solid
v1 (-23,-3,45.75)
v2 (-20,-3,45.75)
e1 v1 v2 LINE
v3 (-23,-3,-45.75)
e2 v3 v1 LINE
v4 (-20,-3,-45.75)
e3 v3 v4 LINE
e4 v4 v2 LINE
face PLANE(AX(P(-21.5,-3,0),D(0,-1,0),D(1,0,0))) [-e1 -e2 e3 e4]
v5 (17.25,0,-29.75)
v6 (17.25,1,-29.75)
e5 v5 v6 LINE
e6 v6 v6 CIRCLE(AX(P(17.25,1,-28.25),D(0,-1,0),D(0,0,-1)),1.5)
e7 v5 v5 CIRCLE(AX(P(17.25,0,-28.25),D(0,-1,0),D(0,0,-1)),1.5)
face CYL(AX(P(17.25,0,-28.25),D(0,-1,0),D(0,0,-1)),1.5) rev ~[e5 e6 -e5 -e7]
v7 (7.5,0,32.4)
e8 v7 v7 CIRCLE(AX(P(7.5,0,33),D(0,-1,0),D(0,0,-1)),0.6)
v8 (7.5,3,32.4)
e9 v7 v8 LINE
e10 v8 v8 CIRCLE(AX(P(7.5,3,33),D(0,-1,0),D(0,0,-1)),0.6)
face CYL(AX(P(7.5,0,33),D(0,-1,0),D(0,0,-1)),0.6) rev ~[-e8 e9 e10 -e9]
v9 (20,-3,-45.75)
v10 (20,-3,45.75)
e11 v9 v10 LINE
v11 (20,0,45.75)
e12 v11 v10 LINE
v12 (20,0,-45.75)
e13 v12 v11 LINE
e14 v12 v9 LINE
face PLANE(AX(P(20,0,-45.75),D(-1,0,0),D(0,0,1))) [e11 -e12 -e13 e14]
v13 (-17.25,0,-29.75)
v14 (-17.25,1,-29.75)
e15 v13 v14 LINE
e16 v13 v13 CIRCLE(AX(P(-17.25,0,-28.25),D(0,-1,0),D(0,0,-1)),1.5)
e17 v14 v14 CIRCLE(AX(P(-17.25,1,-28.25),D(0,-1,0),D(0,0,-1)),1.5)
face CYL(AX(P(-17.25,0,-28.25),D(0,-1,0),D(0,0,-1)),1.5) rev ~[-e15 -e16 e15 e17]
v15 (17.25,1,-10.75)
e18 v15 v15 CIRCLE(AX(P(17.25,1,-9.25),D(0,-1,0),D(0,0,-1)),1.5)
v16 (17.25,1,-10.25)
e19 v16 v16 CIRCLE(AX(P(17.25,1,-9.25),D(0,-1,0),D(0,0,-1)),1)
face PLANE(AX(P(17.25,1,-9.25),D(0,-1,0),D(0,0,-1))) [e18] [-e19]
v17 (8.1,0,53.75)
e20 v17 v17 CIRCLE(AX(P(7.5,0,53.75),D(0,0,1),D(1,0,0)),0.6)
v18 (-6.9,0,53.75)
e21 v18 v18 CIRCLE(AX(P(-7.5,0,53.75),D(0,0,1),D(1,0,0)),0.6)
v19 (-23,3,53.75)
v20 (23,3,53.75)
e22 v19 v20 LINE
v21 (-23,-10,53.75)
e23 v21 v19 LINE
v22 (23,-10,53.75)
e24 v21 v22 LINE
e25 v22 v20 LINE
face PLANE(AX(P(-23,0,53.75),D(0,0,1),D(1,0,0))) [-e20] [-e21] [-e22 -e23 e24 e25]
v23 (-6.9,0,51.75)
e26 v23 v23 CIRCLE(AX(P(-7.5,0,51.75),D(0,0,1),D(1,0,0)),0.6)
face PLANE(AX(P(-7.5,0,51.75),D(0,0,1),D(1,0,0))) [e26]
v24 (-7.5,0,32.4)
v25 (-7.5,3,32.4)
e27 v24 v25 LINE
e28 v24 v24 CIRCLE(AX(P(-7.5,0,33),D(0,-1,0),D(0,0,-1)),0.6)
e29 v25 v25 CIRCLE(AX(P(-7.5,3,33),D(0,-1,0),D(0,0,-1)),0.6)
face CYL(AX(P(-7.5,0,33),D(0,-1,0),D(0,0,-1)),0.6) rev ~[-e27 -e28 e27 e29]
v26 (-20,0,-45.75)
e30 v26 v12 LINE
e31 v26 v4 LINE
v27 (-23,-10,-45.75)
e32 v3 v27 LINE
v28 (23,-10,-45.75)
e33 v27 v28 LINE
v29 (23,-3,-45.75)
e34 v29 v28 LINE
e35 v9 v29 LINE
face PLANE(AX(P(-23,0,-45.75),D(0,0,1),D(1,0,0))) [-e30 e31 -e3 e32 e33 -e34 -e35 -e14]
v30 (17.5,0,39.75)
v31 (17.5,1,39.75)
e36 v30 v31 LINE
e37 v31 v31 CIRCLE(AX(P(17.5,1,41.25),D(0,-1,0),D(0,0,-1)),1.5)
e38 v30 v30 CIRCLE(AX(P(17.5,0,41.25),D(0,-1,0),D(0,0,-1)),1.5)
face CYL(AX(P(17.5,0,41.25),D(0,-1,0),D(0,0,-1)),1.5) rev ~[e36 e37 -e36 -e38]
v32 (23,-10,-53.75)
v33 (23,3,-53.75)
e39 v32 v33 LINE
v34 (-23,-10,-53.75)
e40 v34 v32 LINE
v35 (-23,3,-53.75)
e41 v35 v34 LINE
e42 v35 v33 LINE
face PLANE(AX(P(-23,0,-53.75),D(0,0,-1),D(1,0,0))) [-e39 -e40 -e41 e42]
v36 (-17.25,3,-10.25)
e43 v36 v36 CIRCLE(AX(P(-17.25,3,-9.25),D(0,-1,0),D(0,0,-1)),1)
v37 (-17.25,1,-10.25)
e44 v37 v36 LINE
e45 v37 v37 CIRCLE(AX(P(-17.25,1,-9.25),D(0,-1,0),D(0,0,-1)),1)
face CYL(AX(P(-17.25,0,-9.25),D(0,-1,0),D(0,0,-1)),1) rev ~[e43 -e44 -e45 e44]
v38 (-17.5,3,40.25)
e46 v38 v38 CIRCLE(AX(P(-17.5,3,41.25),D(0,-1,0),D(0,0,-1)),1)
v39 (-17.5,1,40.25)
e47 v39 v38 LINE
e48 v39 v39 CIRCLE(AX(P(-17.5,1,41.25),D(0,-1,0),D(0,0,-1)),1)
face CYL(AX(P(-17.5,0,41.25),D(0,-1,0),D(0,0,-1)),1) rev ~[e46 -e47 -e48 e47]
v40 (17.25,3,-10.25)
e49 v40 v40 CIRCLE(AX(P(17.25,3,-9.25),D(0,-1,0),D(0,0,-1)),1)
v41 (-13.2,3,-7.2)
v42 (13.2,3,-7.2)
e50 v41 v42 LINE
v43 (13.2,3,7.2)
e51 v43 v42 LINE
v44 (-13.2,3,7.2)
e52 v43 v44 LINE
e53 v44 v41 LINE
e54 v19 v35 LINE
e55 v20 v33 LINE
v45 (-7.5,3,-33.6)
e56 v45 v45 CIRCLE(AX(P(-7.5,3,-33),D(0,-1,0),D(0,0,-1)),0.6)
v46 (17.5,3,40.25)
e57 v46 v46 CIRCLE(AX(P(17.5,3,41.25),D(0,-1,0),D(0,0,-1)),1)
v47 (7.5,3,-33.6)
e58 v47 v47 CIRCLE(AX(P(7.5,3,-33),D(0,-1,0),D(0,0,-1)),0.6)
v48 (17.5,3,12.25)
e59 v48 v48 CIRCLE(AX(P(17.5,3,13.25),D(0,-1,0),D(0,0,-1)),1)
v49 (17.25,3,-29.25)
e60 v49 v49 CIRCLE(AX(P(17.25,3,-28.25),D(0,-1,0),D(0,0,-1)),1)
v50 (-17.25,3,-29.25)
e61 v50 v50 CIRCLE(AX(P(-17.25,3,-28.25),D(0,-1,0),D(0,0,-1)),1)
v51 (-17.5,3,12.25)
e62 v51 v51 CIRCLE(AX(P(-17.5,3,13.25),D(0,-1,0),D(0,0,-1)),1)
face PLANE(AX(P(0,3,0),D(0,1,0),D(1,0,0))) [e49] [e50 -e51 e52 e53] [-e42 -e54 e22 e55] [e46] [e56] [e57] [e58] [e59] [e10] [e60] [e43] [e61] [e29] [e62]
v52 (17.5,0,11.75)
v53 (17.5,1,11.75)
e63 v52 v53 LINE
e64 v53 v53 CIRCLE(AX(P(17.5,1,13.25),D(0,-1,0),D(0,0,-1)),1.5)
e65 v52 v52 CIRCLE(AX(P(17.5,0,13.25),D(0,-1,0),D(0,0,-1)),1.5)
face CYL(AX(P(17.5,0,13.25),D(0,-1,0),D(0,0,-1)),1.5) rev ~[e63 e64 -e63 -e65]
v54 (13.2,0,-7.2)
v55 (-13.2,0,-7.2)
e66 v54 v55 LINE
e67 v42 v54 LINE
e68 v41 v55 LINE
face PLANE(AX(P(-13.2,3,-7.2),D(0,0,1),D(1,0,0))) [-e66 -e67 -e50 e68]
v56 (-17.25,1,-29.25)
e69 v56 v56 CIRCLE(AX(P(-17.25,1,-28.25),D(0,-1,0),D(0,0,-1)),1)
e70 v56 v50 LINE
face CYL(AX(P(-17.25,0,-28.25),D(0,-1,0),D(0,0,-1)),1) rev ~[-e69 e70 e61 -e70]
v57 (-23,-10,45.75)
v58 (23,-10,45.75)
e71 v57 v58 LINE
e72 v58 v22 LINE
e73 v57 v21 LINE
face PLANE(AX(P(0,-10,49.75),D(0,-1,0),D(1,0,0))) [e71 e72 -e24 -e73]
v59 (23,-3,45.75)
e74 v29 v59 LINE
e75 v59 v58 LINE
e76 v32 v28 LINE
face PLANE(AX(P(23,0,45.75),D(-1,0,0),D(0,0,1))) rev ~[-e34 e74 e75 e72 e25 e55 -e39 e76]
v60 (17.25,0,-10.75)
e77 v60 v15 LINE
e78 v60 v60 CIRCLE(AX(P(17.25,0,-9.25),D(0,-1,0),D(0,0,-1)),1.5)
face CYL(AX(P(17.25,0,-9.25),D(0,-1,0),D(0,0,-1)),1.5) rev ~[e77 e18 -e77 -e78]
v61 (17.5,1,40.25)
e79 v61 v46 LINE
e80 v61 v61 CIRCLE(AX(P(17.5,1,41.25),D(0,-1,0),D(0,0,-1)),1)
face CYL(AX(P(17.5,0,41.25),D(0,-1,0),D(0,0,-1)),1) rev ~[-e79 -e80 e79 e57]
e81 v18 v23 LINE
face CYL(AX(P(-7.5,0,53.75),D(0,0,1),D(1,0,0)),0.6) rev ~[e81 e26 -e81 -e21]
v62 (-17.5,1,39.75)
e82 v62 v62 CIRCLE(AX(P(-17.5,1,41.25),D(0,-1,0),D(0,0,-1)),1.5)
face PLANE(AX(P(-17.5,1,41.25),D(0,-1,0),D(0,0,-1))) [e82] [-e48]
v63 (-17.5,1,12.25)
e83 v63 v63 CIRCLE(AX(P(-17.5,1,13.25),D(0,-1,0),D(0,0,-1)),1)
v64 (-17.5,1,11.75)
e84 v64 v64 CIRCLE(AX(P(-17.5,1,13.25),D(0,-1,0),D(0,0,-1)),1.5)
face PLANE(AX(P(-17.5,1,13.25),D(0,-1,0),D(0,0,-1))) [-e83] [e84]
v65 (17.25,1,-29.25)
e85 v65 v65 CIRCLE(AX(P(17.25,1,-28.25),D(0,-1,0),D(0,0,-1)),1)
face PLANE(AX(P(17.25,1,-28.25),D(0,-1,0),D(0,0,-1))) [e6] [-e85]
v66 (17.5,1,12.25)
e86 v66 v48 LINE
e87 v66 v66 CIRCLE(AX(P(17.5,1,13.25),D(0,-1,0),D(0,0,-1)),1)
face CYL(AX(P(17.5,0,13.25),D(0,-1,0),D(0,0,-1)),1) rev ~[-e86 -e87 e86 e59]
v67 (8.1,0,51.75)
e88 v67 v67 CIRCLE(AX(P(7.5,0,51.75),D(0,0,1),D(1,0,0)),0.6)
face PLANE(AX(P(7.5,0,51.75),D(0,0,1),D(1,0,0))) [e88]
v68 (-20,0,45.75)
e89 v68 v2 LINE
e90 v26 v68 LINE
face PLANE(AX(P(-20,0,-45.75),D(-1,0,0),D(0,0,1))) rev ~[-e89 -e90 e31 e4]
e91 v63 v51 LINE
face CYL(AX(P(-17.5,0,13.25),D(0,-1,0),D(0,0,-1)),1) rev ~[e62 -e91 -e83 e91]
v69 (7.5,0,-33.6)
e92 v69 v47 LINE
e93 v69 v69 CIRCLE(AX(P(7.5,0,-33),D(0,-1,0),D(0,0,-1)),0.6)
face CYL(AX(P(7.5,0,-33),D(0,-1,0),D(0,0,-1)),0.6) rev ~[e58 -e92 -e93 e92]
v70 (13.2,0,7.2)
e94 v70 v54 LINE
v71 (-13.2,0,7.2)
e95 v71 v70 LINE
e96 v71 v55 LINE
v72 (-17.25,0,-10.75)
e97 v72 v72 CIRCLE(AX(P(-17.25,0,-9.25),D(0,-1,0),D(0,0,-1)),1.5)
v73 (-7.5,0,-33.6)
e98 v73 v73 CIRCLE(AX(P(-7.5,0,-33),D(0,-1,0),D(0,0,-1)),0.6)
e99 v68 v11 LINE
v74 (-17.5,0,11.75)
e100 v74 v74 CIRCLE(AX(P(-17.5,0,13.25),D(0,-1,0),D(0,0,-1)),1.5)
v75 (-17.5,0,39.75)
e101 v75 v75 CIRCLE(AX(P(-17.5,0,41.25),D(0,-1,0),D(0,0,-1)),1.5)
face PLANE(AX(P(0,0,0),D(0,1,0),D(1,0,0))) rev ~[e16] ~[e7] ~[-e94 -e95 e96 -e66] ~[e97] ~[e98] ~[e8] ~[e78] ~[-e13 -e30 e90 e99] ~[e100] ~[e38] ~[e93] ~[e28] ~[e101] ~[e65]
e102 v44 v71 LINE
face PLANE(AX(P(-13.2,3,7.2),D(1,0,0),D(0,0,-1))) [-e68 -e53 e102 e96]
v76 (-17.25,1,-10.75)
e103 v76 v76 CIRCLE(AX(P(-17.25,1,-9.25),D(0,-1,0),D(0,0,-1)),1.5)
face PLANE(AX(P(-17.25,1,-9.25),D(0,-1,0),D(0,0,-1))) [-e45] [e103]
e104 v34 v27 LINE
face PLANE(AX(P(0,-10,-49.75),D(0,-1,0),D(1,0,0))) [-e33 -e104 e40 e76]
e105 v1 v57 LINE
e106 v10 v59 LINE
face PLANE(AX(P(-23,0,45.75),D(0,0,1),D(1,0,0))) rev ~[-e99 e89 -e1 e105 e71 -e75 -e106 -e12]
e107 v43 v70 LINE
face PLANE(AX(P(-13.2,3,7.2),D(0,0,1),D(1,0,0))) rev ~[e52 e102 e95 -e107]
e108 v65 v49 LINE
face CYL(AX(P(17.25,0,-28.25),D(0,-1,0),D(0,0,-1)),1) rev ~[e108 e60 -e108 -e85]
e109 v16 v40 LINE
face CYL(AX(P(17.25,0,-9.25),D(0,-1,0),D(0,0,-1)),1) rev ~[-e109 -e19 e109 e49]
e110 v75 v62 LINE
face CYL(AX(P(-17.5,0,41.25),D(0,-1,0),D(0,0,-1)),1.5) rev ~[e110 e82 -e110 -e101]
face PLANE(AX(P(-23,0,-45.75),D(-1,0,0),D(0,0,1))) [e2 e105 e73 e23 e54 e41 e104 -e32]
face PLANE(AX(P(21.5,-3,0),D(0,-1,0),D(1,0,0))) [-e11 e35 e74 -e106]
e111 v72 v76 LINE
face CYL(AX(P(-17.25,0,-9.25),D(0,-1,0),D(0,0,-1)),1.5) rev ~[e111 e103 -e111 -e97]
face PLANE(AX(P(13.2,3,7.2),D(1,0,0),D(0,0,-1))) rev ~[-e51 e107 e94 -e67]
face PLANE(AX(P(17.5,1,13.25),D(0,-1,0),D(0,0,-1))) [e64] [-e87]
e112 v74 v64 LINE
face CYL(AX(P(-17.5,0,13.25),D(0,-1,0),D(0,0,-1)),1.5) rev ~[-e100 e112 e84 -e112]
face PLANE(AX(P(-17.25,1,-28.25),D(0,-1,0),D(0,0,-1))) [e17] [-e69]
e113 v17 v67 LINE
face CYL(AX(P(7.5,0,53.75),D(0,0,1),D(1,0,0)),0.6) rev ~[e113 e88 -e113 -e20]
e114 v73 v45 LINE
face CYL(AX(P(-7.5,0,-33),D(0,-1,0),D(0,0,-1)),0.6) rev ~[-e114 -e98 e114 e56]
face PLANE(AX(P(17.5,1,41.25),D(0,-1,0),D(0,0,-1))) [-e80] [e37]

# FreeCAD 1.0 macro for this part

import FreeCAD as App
import Part
import Sketcher

V = App.Vector
Q = App.Units.Quantity

doc = App.newDocument("Part")
params = doc.addObject("Spreadsheet::Sheet", "Params")
for row, (alias, value) in enumerate([
    ("sketch1_width", "46 mm"),
    ("sketch1_height", "107.5 mm"),
    ("pad1_length", "3 mm"),
    ("sketch2_height", "56 mm"),
    ("sketch2_width", "23.5 mm"),
    ("pad2_length", "12.4 mm"),
    ("sketch3_diameter", "3.5 mm"),
    ("sketch3_diameter2", "1.5 mm"),
    ("sketch4_diameter", "6 mm"),
    ("pocket2_length", "2.7 mm"),
    ("sketch5_diameter", "6 mm"),
    ("pocket3_length", "2.7 mm"),
    ("sketch6_diameter", "3 mm"),
    ("pocket4_length", "1.2 mm"),
    ("sketch7_diameter", "3 mm"),
    ("pocket5_length", "1.2 mm"),
    ("sketch8_diameter", "1.4 mm"),
    ("pocket6_length", "2 mm"),
    ("sketch9_width", "16.4 mm"),
    ("sketch9_height", "14.4 mm"),
    ("sketch10_width", "46 mm"),
    ("sketch10_height", "8 mm"),
    ("pad3_length", "10 mm"),
    ("sketch11_width", "3 mm"),
    ("sketch11_height", "91.5 mm"),
    ("pad4_length", "3 mm"),
    ("sketch12_diameter", "1.2 mm"),
    ("pocket8_length", "2 mm"),
    ("sketch13_width", "26.4 mm"),
    ("sketch13_height", "14.4 mm"),
    ("pocket9_length", "5 mm"),
    ("sketch14_diameter", "1 mm"),
    ("pocket10_length", "2 mm"),
    ("sketch15_width", "2 mm"),
    ("sketch15_width2", "3.2 mm"),
    ("sketch15_height", "5.2 mm"),
    ("sketch15_height2", "11.5 mm"),
    ("sketch16_diameter", "1.2 mm"),
    ("sketch17_width", "23.5 mm"),
    ("sketch17_height", "12.4 mm"),
    ("pocket13_length", "56 mm"),
    ("sketch18_diameter", "2 mm"),
    ("sketch19_diameter", "3 mm"),
    ("sketch19_diameter2", "2 mm"),
    ("pocket15_length", "1 mm"),
    ("sketch20_diameter", "2 mm"),
    ("sketch21_diameter", "3 mm"),
    ("pocket17_length", "1 mm"),
], start=1):
    params.set(f"A{row}", alias)
    params.set(f"B{row}", "=" + value)
    params.setAlias(f"B{row}", alias)

body = doc.addObject("PartDesign::Body", "Body")

# Sketch on XZ plane
sketch1 = body.newObject("Sketcher::SketchObject", "Sketch")
sketch1.AttachmentSupport = (doc.getObject("XZ_Plane"), [""])
sketch1.MapMode = "FlatFace"
sketch1.addGeometry(Part.LineSegment(V(-23, -54, 0), V(-23, 54, 0)), False)
sketch1.addGeometry(Part.LineSegment(V(-23, 54, 0), V(23, 54, 0)), False)
sketch1.addGeometry(Part.LineSegment(V(23, 54, 0), V(23, -54, 0)), False)
sketch1.addGeometry(Part.LineSegment(V(23, -54, 0), V(-23, -54, 0)), False)
sketch1.addConstraint(Sketcher.Constraint("Coincident", 0, 2, 1, 1))
sketch1.addConstraint(Sketcher.Constraint("Coincident", 1, 2, 2, 1))
sketch1.addConstraint(Sketcher.Constraint("Coincident", 2, 2, 3, 1))
sketch1.addConstraint(Sketcher.Constraint("Coincident", 3, 2, 0, 1))
sketch1.addConstraint(Sketcher.Constraint("Vertical", 0))
sketch1.addConstraint(Sketcher.Constraint("Horizontal", 1))
sketch1.addConstraint(Sketcher.Constraint("Vertical", 2))
sketch1.addConstraint(Sketcher.Constraint("Horizontal", 3))
sketch1.addConstraint(Sketcher.Constraint("Symmetric", 0, 2, 2, 2, -1, 1))
sketch1.addConstraint(Sketcher.Constraint("DistanceX", 1, 1, 1, 2, Q("46 mm")))
sketch1.addConstraint(Sketcher.Constraint("DistanceY", 0, 1, 0, 2, Q("107.5 mm")))
sketch1.setExpression("Constraints[9]", "Params.sketch1_width")
sketch1.setExpression("Constraints[10]", "Params.sketch1_height")
pad1 = body.newObject("PartDesign::Pad", "Pad")
pad1.Profile = sketch1
pad1.setExpression("Length", "Params.pad1_length")
pad1.Reversed = True

# Sketch on XZ plane
sketch2 = body.newObject("Sketcher::SketchObject", "Sketch001")
sketch2.AttachmentSupport = (doc.getObject("XZ_Plane"), [""])
sketch2.MapMode = "FlatFace"
sketch2.addGeometry(Part.LineSegment(V(-12, 28, 0), V(-12, -28, 0)), False)
sketch2.addGeometry(Part.LineSegment(V(-12, -28, 0), V(12, -28, 0)), False)
sketch2.addGeometry(Part.LineSegment(V(12, -28, 0), V(12, 28, 0)), False)
sketch2.addGeometry(Part.LineSegment(V(12, 28, 0), V(-12, 28, 0)), False)
sketch2.addConstraint(Sketcher.Constraint("Coincident", 0, 2, 1, 1))
sketch2.addConstraint(Sketcher.Constraint("Coincident", 1, 2, 2, 1))
sketch2.addConstraint(Sketcher.Constraint("Coincident", 2, 2, 3, 1))
sketch2.addConstraint(Sketcher.Constraint("Coincident", 3, 2, 0, 1))
sketch2.addConstraint(Sketcher.Constraint("Vertical", 0))
sketch2.addConstraint(Sketcher.Constraint("Horizontal", 1))
sketch2.addConstraint(Sketcher.Constraint("Vertical", 2))
sketch2.addConstraint(Sketcher.Constraint("Horizontal", 3))
sketch2.addConstraint(Sketcher.Constraint("Symmetric", 0, 2, 2, 2, -1, 1))
sketch2.addConstraint(Sketcher.Constraint("DistanceY", 0, 2, 0, 1, Q("56 mm")))
sketch2.addConstraint(Sketcher.Constraint("DistanceX", 1, 1, 1, 2, Q("23.5 mm")))
sketch2.setExpression("Constraints[9]", "Params.sketch2_height")
sketch2.setExpression("Constraints[10]", "Params.sketch2_width")
pad2 = body.newObject("PartDesign::Pad", "Pad001")
pad2.Profile = sketch2
pad2.setExpression("Length", "Params.pad2_length")

# Sketch on YZ plane
sketch3 = body.newObject("Sketcher::SketchObject", "Sketch002")
sketch3.AttachmentSupport = (doc.getObject("YZ_Plane"), [""])
sketch3.MapMode = "FlatFace"
sketch3.AttachmentOffset = App.Placement(V(0, 0, -11.75), App.Rotation())
sketch3.addGeometry(Part.Circle(V(-12.4, 0, 0), V(0, 0, 1), 1.8), False)
sketch3.addGeometry(Part.Circle(V(-12.4, 25, 0), V(0, 0, 1), 0.8), False)
sketch3.addGeometry(Part.Circle(V(-12.4, -25, 0), V(0, 0, 1), 0.8), False)
sketch3.addConstraint(Sketcher.Constraint("Equal", 1, 2))
sketch3.addConstraint(Sketcher.Constraint("Symmetric", 1, 3, 2, 3, -1))
sketch3.addConstraint(Sketcher.Constraint("PointOnObject", 0, 3, -1))
sketch3.addConstraint(Sketcher.Constraint("Vertical", 0, 3, 1, 3))
sketch3.addConstraint(Sketcher.Constraint("Diameter", 0, Q("3.5 mm")))
sketch3.addConstraint(Sketcher.Constraint("Diameter", 1, Q("1.5 mm")))
sketch3.addConstraint(Sketcher.Constraint("DistanceY", -1, 1, 1, 3, Q("25 mm")))
sketch3.addConstraint(Sketcher.Constraint("DistanceX", 0, 3, -1, 1, Q("12.4 mm")))
sketch3.setExpression("Constraints[4]", "Params.sketch3_diameter")
sketch3.setExpression("Constraints[5]", "Params.sketch3_diameter2")
pocket1 = body.newObject("PartDesign::Pocket", "Pocket")
pocket1.Profile = sketch3
pocket1.Type = "ThroughAll"
pocket1.Reversed = True

# Sketch on YZ plane
sketch4 = body.newObject("Sketcher::SketchObject", "Sketch003")
sketch4.AttachmentSupport = (doc.getObject("YZ_Plane"), [""])
sketch4.MapMode = "FlatFace"
sketch4.AttachmentOffset = App.Placement(V(0, 0, -11.75), App.Rotation())
sketch4.addGeometry(Part.Circle(V(-12.4, 0, 0), V(0, 0, 1), 3), False)
sketch4.addConstraint(Sketcher.Constraint("PointOnObject", 0, 3, -1))
sketch4.addConstraint(Sketcher.Constraint("Diameter", 0, Q("6 mm")))
sketch4.addConstraint(Sketcher.Constraint("DistanceX", 0, 3, -1, 1, Q("12.4 mm")))
sketch4.setExpression("Constraints[1]", "Params.sketch4_diameter")
pocket2 = body.newObject("PartDesign::Pocket", "Pocket001")
pocket2.Profile = sketch4
pocket2.setExpression("Length", "Params.pocket2_length")
pocket2.Reversed = True

# Sketch on YZ plane
sketch5 = body.newObject("Sketcher::SketchObject", "Sketch004")
sketch5.AttachmentSupport = (doc.getObject("YZ_Plane"), [""])
sketch5.MapMode = "FlatFace"
sketch5.AttachmentOffset = App.Placement(V(0, 0, 9.05), App.Rotation())
sketch5.addGeometry(Part.Circle(V(-12.4, 0, 0), V(0, 0, 1), 3), False)
sketch5.addConstraint(Sketcher.Constraint("PointOnObject", 0, 3, -1))
sketch5.addConstraint(Sketcher.Constraint("Diameter", 0, Q("6 mm")))
sketch5.addConstraint(Sketcher.Constraint("DistanceX", 0, 3, -1, 1, Q("12.4 mm")))
sketch5.setExpression("Constraints[1]", "Params.sketch5_diameter")
pocket3 = body.newObject("PartDesign::Pocket", "Pocket002")
pocket3.Profile = sketch5
pocket3.setExpression("Length", "Params.pocket3_length")
pocket3.Reversed = True

# Sketch on YZ plane
sketch6 = body.newObject("Sketcher::SketchObject", "Sketch005")
sketch6.AttachmentSupport = (doc.getObject("YZ_Plane"), [""])
sketch6.MapMode = "FlatFace"
sketch6.AttachmentOffset = App.Placement(V(0, 0, -11.75), App.Rotation())
sketch6.addGeometry(Part.Circle(V(-12.4, 25, 0), V(0, 0, 1), 1.5), False)
sketch6.addGeometry(Part.Circle(V(-12.4, -25, 0), V(0, 0, 1), 1.5), False)
sketch6.addConstraint(Sketcher.Constraint("Equal", 0, 1))
sketch6.addConstraint(Sketcher.Constraint("Symmetric", 0, 3, 1, 3, -1))
sketch6.addConstraint(Sketcher.Constraint("Diameter", 0, Q("3 mm")))
sketch6.addConstraint(Sketcher.Constraint("DistanceY", -1, 1, 0, 3, Q("25 mm")))
sketch6.addConstraint(Sketcher.Constraint("DistanceX", 0, 3, -1, 1, Q("12.4 mm")))
sketch6.setExpression("Constraints[2]", "Params.sketch6_diameter")
pocket4 = body.newObject("PartDesign::Pocket", "Pocket003")
pocket4.Profile = sketch6
pocket4.setExpression("Length", "Params.pocket4_length")
pocket4.Reversed = True

# Sketch on YZ plane
sketch7 = body.newObject("Sketcher::SketchObject", "Sketch006")
sketch7.AttachmentSupport = (doc.getObject("YZ_Plane"), [""])
sketch7.MapMode = "FlatFace"
sketch7.AttachmentOffset = App.Placement(V(0, 0, 10.55), App.Rotation())
sketch7.addGeometry(Part.Circle(V(-12.4, 25, 0), V(0, 0, 1), 1.5), False)
sketch7.addGeometry(Part.Circle(V(-12.4, -25, 0), V(0, 0, 1), 1.5), False)
sketch7.addConstraint(Sketcher.Constraint("Equal", 0, 1))
sketch7.addConstraint(Sketcher.Constraint("Symmetric", 0, 3, 1, 3, -1))
sketch7.addConstraint(Sketcher.Constraint("Diameter", 0, Q("3 mm")))
sketch7.addConstraint(Sketcher.Constraint("DistanceY", -1, 1, 0, 3, Q("25 mm")))
sketch7.addConstraint(Sketcher.Constraint("DistanceX", 0, 3, -1, 1, Q("12.4 mm")))
sketch7.setExpression("Constraints[2]", "Params.sketch7_diameter")
pocket5 = body.newObject("PartDesign::Pocket", "Pocket004")
pocket5.Profile = sketch7
pocket5.setExpression("Length", "Params.pocket5_length")
pocket5.Reversed = True

# Sketch on XZ plane
sketch8 = body.newObject("Sketcher::SketchObject", "Sketch007")
sketch8.AttachmentSupport = (doc.getObject("XZ_Plane"), [""])
sketch8.MapMode = "FlatFace"
sketch8.AttachmentOffset = App.Placement(V(0, 0, 12.4), App.Rotation())
sketch8.addGeometry(Part.Circle(V(-9.2, 20, 0), V(0, 0, 1), 0.7), False)
sketch8.addGeometry(Part.Circle(V(9.2, 20, 0), V(0, 0, 1), 0.7), False)
sketch8.addGeometry(Part.Circle(V(9.2, 6, 0), V(0, 0, 1), 0.7), False)
sketch8.addGeometry(Part.Circle(V(-9.2, 6, 0), V(0, 0, 1), 0.7), False)
sketch8.addGeometry(Part.Circle(V(-9.2, -6, 0), V(0, 0, 1), 0.7), False)
sketch8.addGeometry(Part.Circle(V(9.2, -6, 0), V(0, 0, 1), 0.7), False)
sketch8.addGeometry(Part.Circle(V(9.2, -20, 0), V(0, 0, 1), 0.7), False)
sketch8.addGeometry(Part.Circle(V(-9.2, -20, 0), V(0, 0, 1), 0.7), False)
sketch8.addConstraint(Sketcher.Constraint("Equal", 0, 1))
sketch8.addConstraint(Sketcher.Constraint("Equal", 1, 2))
sketch8.addConstraint(Sketcher.Constraint("Equal", 2, 3))
sketch8.addConstraint(Sketcher.Constraint("Equal", 3, 4))
sketch8.addConstraint(Sketcher.Constraint("Equal", 4, 5))
sketch8.addConstraint(Sketcher.Constraint("Equal", 5, 6))
sketch8.addConstraint(Sketcher.Constraint("Equal", 6, 7))
sketch8.addConstraint(Sketcher.Constraint("Symmetric", 2, 3, 4, 3, -1, 1))
sketch8.addConstraint(Sketcher.Constraint("Symmetric", 3, 3, 5, 3, -1, 1))
sketch8.addConstraint(Sketcher.Constraint("Symmetric", 0, 3, 6, 3, -1, 1))
sketch8.addConstraint(Sketcher.Constraint("Symmetric", 1, 3, 7, 3, -1, 1))
sketch8.addConstraint(Sketcher.Constraint("Symmetric", 0, 3, 1, 3, -2))
sketch8.addConstraint(Sketcher.Constraint("Symmetric", 2, 3, 3, 3, -2))
sketch8.addConstraint(Sketcher.Constraint("Vertical", 1, 3, 2, 3))
sketch8.addConstraint(Sketcher.Constraint("Diameter", 0, Q("1.4 mm")))
sketch8.addConstraint(Sketcher.Constraint("DistanceY", -1, 1, 0, 3, Q("20 mm")))
sketch8.addConstraint(Sketcher.Constraint("DistanceY", -1, 1, 2, 3, Q("6 mm")))
sketch8.addConstraint(Sketcher.Constraint("DistanceX", 0, 3, 1, 3, Q("18.4999 mm")))
sketch8.setExpression("Constraints[14]", "Params.sketch8_diameter")
pocket6 = body.newObject("PartDesign::Pocket", "Pocket005")
pocket6.Profile = sketch8
pocket6.setExpression("Length", "Params.pocket6_length")

# Sketch on XZ plane
sketch9 = body.newObject("Sketcher::SketchObject", "Sketch008")
sketch9.AttachmentSupport = (doc.getObject("XZ_Plane"), [""])
sketch9.MapMode = "FlatFace"
sketch9.AttachmentOffset = App.Placement(V(0, 0, 10.4), App.Rotation())
sketch9.addGeometry(Part.LineSegment(V(-8, 7, 0), V(-8, -7, 0)), False)
sketch9.addGeometry(Part.LineSegment(V(-8, -7, 0), V(8, -7, 0)), False)
sketch9.addGeometry(Part.LineSegment(V(8, -7, 0), V(8, 7, 0)), False)
sketch9.addGeometry(Part.LineSegment(V(8, 7, 0), V(-8, 7, 0)), False)
sketch9.addConstraint(Sketcher.Constraint("Coincident", 0, 2, 1, 1))
sketch9.addConstraint(Sketcher.Constraint("Coincident", 1, 2, 2, 1))
sketch9.addConstraint(Sketcher.Constraint("Coincident", 2, 2, 3, 1))
sketch9.addConstraint(Sketcher.Constraint("Coincident", 3, 2, 0, 1))
sketch9.addConstraint(Sketcher.Constraint("Vertical", 0))
sketch9.addConstraint(Sketcher.Constraint("Horizontal", 1))
sketch9.addConstraint(Sketcher.Constraint("Vertical", 2))
sketch9.addConstraint(Sketcher.Constraint("Horizontal", 3))
sketch9.addConstraint(Sketcher.Constraint("Symmetric", 0, 2, 2, 2, -1, 1))
sketch9.addConstraint(Sketcher.Constraint("DistanceX", 1, 1, 1, 2, Q("16.4 mm")))
sketch9.addConstraint(Sketcher.Constraint("DistanceY", 0, 2, 0, 1, Q("14.4 mm")))
sketch9.setExpression("Constraints[9]", "Params.sketch9_width")
sketch9.setExpression("Constraints[10]", "Params.sketch9_height")
pocket7 = body.newObject("PartDesign::Pocket", "Pocket006")
pocket7.Profile = sketch9
pocket7.Type = "ThroughAll"

# Sketch on XZ plane
sketch10 = body.newObject("Sketcher::SketchObject", "Sketch009")
sketch10.AttachmentSupport = (doc.getObject("XZ_Plane"), [""])
sketch10.MapMode = "FlatFace"
sketch10.addGeometry(Part.LineSegment(V(-23, 54, 0), V(-23, 46, 0)), False)
sketch10.addGeometry(Part.LineSegment(V(-23, 46, 0), V(23, 46, 0)), False)
sketch10.addGeometry(Part.LineSegment(V(23, 46, 0), V(23, 54, 0)), False)
sketch10.addGeometry(Part.LineSegment(V(23, 54, 0), V(-23, 54, 0)), False)
sketch10.addGeometry(Part.LineSegment(V(-23, -46, 0), V(-23, -54, 0)), False)
sketch10.addGeometry(Part.LineSegment(V(-23, -54, 0), V(23, -54, 0)), False)
sketch10.addGeometry(Part.LineSegment(V(23, -54, 0), V(23, -46, 0)), False)
sketch10.addGeometry(Part.LineSegment(V(23, -46, 0), V(-23, -46, 0)), False)
sketch10.addConstraint(Sketcher.Constraint("Coincident", 0, 2, 1, 1))
sketch10.addConstraint(Sketcher.Constraint("Coincident", 1, 2, 2, 1))
sketch10.addConstraint(Sketcher.Constraint("Coincident", 2, 2, 3, 1))
sketch10.addConstraint(Sketcher.Constraint("Coincident", 3, 2, 0, 1))
sketch10.addConstraint(Sketcher.Constraint("Coincident", 4, 2, 5, 1))
sketch10.addConstraint(Sketcher.Constraint("Coincident", 5, 2, 6, 1))
sketch10.addConstraint(Sketcher.Constraint("Coincident", 6, 2, 7, 1))
sketch10.addConstraint(Sketcher.Constraint("Coincident", 7, 2, 4, 1))
sketch10.addConstraint(Sketcher.Constraint("Vertical", 0))
sketch10.addConstraint(Sketcher.Constraint("Horizontal", 1))
sketch10.addConstraint(Sketcher.Constraint("Vertical", 2))
sketch10.addConstraint(Sketcher.Constraint("Horizontal", 3))
sketch10.addConstraint(Sketcher.Constraint("Vertical", 4))
sketch10.addConstraint(Sketcher.Constraint("Horizontal", 5))
sketch10.addConstraint(Sketcher.Constraint("Vertical", 6))
sketch10.addConstraint(Sketcher.Constraint("Horizontal", 7))
sketch10.addConstraint(Sketcher.Constraint("Symmetric", 2, 2, 4, 2, -1, 1))
sketch10.addConstraint(Sketcher.Constraint("Symmetric", 0, 2, 6, 2, -1, 1))
sketch10.addConstraint(Sketcher.Constraint("Vertical", 3, 2, 4, 2))
sketch10.addConstraint(Sketcher.Constraint("DistanceX", 1, 1, 1, 2, Q("46 mm")))
sketch10.addConstraint(Sketcher.Constraint("DistanceY", 0, 2, 0, 1, Q("8 mm")))
sketch10.addConstraint(Sketcher.Constraint("DistanceY", 4, 2, 0, 2, Q("99.5 mm")))
sketch10.setExpression("Constraints[19]", "Params.sketch10_width")
sketch10.setExpression("Constraints[20]", "Params.sketch10_height")
pad3 = body.newObject("PartDesign::Pad", "Pad002")
pad3.Profile = sketch10
pad3.setExpression("Length", "Params.pad3_length")

# Sketch on XZ plane
sketch11 = body.newObject("Sketcher::SketchObject", "Sketch010")
sketch11.AttachmentSupport = (doc.getObject("XZ_Plane"), [""])
sketch11.MapMode = "FlatFace"
sketch11.addGeometry(Part.LineSegment(V(-23, 45.8, 0), V(-23, -45.8, 0)), False)
sketch11.addGeometry(Part.LineSegment(V(-23, -45.8, 0), V(-20, -45.8, 0)), False)
sketch11.addGeometry(Part.LineSegment(V(-20, -45.8, 0), V(-20, 45.8, 0)), False)
sketch11.addGeometry(Part.LineSegment(V(-20, 45.8, 0), V(-23, 45.8, 0)), False)
sketch11.addGeometry(Part.LineSegment(V(20, 45.8, 0), V(20, -45.8, 0)), False)
sketch11.addGeometry(Part.LineSegment(V(20, -45.8, 0), V(23, -45.8, 0)), False)
sketch11.addGeometry(Part.LineSegment(V(23, -45.8, 0), V(23, 45.8, 0)), False)
sketch11.addGeometry(Part.LineSegment(V(23, 45.8, 0), V(20, 45.8, 0)), False)
sketch11.addConstraint(Sketcher.Constraint("Coincident", 0, 2, 1, 1))
sketch11.addConstraint(Sketcher.Constraint("Coincident", 1, 2, 2, 1))
sketch11.addConstraint(Sketcher.Constraint("Coincident", 2, 2, 3, 1))
sketch11.addConstraint(Sketcher.Constraint("Coincident", 3, 2, 0, 1))
sketch11.addConstraint(Sketcher.Constraint("Coincident", 4, 2, 5, 1))
sketch11.addConstraint(Sketcher.Constraint("Coincident", 5, 2, 6, 1))
sketch11.addConstraint(Sketcher.Constraint("Coincident", 6, 2, 7, 1))
sketch11.addConstraint(Sketcher.Constraint("Coincident", 7, 2, 4, 1))
sketch11.addConstraint(Sketcher.Constraint("Vertical", 0))
sketch11.addConstraint(Sketcher.Constraint("Horizontal", 1))
sketch11.addConstraint(Sketcher.Constraint("Vertical", 2))
sketch11.addConstraint(Sketcher.Constraint("Horizontal", 3))
sketch11.addConstraint(Sketcher.Constraint("Vertical", 4))
sketch11.addConstraint(Sketcher.Constraint("Horizontal", 5))
sketch11.addConstraint(Sketcher.Constraint("Vertical", 6))
sketch11.addConstraint(Sketcher.Constraint("Horizontal", 7))
sketch11.addConstraint(Sketcher.Constraint("Symmetric", 2, 2, 4, 2, -1, 1))
sketch11.addConstraint(Sketcher.Constraint("Symmetric", 0, 2, 6, 2, -1, 1))
sketch11.addConstraint(Sketcher.Constraint("Horizontal", 1, 2, 4, 2))
sketch11.addConstraint(Sketcher.Constraint("DistanceX", 1, 1, 1, 2, Q("3 mm")))
sketch11.addConstraint(Sketcher.Constraint("DistanceY", 0, 2, 0, 1, Q("91.5 mm")))
sketch11.addConstraint(Sketcher.Constraint("DistanceX", 0, 2, -1, 1, Q("23 mm")))
sketch11.setExpression("Constraints[19]", "Params.sketch11_width")
sketch11.setExpression("Constraints[20]", "Params.sketch11_height")
pad4 = body.newObject("PartDesign::Pad", "Pad003")
pad4.Profile = sketch11
pad4.setExpression("Length", "Params.pad4_length")

# Sketch on XY plane
sketch12 = body.newObject("Sketcher::SketchObject", "Sketch011")
sketch12.AttachmentSupport = (doc.getObject("XY_Plane"), [""])
sketch12.MapMode = "FlatFace"
sketch12.AttachmentOffset = App.Placement(V(0, 0, 53.75), App.Rotation())
sketch12.addGeometry(Part.Circle(V(-7.5, 0, 0), V(0, 0, 1), 0.6), False)
sketch12.addGeometry(Part.Circle(V(7.5, 0, 0), V(0, 0, 1), 0.6), False)
sketch12.addConstraint(Sketcher.Constraint("Equal", 0, 1))
sketch12.addConstraint(Sketcher.Constraint("Symmetric", 0, 3, 1, 3, -1, 1))
sketch12.addConstraint(Sketcher.Constraint("PointOnObject", 0, 3, -1))
sketch12.addConstraint(Sketcher.Constraint("Diameter", 0, Q("1.2 mm")))
sketch12.addConstraint(Sketcher.Constraint("DistanceX", 0, 3, 1, 3, Q("15 mm")))
sketch12.setExpression("Constraints[3]", "Params.sketch12_diameter")
pocket8 = body.newObject("PartDesign::Pocket", "Pocket007")
pocket8.Profile = sketch12
pocket8.setExpression("Length", "Params.pocket8_length")

# Sketch on XZ plane
sketch13 = body.newObject("Sketcher::SketchObject", "Sketch012")
sketch13.AttachmentSupport = (doc.getObject("XZ_Plane"), [""])
sketch13.MapMode = "FlatFace"
sketch13.AttachmentOffset = App.Placement(V(0, 0, -3), App.Rotation())
sketch13.addGeometry(Part.LineSegment(V(-13, -7, 0), V(-13, 7, 0)), False)
sketch13.addGeometry(Part.LineSegment(V(-13, 7, 0), V(13, 7, 0)), False)
sketch13.addGeometry(Part.LineSegment(V(13, 7, 0), V(13, -7, 0)), False)
sketch13.addGeometry(Part.LineSegment(V(13, -7, 0), V(-13, -7, 0)), False)
sketch13.addConstraint(Sketcher.Constraint("Coincident", 0, 2, 1, 1))
sketch13.addConstraint(Sketcher.Constraint("Coincident", 1, 2, 2, 1))
sketch13.addConstraint(Sketcher.Constraint("Coincident", 2, 2, 3, 1))
sketch13.addConstraint(Sketcher.Constraint("Coincident", 3, 2, 0, 1))
sketch13.addConstraint(Sketcher.Constraint("Vertical", 0))
sketch13.addConstraint(Sketcher.Constraint("Horizontal", 1))
sketch13.addConstraint(Sketcher.Constraint("Vertical", 2))
sketch13.addConstraint(Sketcher.Constraint("Horizontal", 3))
sketch13.addConstraint(Sketcher.Constraint("Symmetric", 0, 2, 2, 2, -1, 1))
sketch13.addConstraint(Sketcher.Constraint("DistanceX", 1, 1, 1, 2, Q("26.4 mm")))
sketch13.addConstraint(Sketcher.Constraint("DistanceY", 0, 1, 0, 2, Q("14.4 mm")))
sketch13.setExpression("Constraints[9]", "Params.sketch13_width")
sketch13.setExpression("Constraints[10]", "Params.sketch13_height")
pocket9 = body.newObject("PartDesign::Pocket", "Pocket008")
pocket9.Profile = sketch13
pocket9.setExpression("Length", "Params.pocket9_length")
pocket9.Reversed = True

# Sketch on XZ plane
sketch14 = body.newObject("Sketcher::SketchObject", "Sketch013")
sketch14.AttachmentSupport = (doc.getObject("XZ_Plane"), [""])
sketch14.MapMode = "FlatFace"
sketch14.AttachmentOffset = App.Placement(V(0, 0, 2), App.Rotation())
sketch14.addGeometry(Part.Circle(V(-10, 0, 0), V(0, 0, 1), 0.5), False)
sketch14.addGeometry(Part.Circle(V(10, 0, 0), V(0, 0, 1), 0.5), False)
sketch14.addConstraint(Sketcher.Constraint("Equal", 0, 1))
sketch14.addConstraint(Sketcher.Constraint("Symmetric", 0, 3, 1, 3, -1, 1))
sketch14.addConstraint(Sketcher.Constraint("PointOnObject", 0, 3, -1))
sketch14.addConstraint(Sketcher.Constraint("Diameter", 0, Q("1 mm")))
sketch14.addConstraint(Sketcher.Constraint("DistanceX", 0, 3, 1, 3, Q("19.95 mm")))
sketch14.setExpression("Constraints[3]", "Params.sketch14_diameter")
pocket10 = body.newObject("PartDesign::Pocket", "Pocket009")
pocket10.Profile = sketch14
pocket10.setExpression("Length", "Params.pocket10_length")
pocket10.Reversed = True

# Sketch on XZ plane
sketch15 = body.newObject("Sketcher::SketchObject", "Sketch014")
sketch15.AttachmentSupport = (doc.getObject("XZ_Plane"), [""])
sketch15.MapMode = "FlatFace"
sketch15.AttachmentOffset = App.Placement(V(0, 0, 12.4), App.Rotation())
sketch15.addGeometry(Part.LineSegment(V(-6.8, 2.6, 0), V(-8.8, 2.6, 0)), False)
sketch15.addGeometry(Part.LineSegment(V(-8.8, 2.6, 0), V(-8.8, -2.6, 0)), False)
sketch15.addGeometry(Part.LineSegment(V(-8.8, -2.6, 0), V(-6.8, -2.6, 0)), False)
sketch15.addGeometry(Part.LineSegment(V(-6.8, -2.6, 0), V(-6.8, -5.8, 0)), False)
sketch15.addGeometry(Part.LineSegment(V(-6.8, -5.8, 0), V(-3.5, -5.8, 0)), False)
sketch15.addGeometry(Part.LineSegment(V(-3.5, -5.8, 0), V(-3.5, 5.8, 0)), False)
sketch15.addGeometry(Part.LineSegment(V(-3.5, 5.8, 0), V(-6.8, 5.8, 0)), False)
sketch15.addGeometry(Part.LineSegment(V(-6.8, 5.8, 0), V(-6.8, 2.6, 0)), False)
sketch15.addConstraint(Sketcher.Constraint("Coincident", 0, 2, 1, 1))
sketch15.addConstraint(Sketcher.Constraint("Coincident", 1, 2, 2, 1))
sketch15.addConstraint(Sketcher.Constraint("Coincident", 2, 2, 3, 1))
sketch15.addConstraint(Sketcher.Constraint("Coincident", 3, 2, 4, 1))
sketch15.addConstraint(Sketcher.Constraint("Coincident", 4, 2, 5, 1))
sketch15.addConstraint(Sketcher.Constraint("Coincident", 5, 2, 6, 1))
sketch15.addConstraint(Sketcher.Constraint("Coincident", 6, 2, 7, 1))
sketch15.addConstraint(Sketcher.Constraint("Coincident", 7, 2, 0, 1))
sketch15.addConstraint(Sketcher.Constraint("Horizontal", 0))
sketch15.addConstraint(Sketcher.Constraint("Vertical", 1))
sketch15.addConstraint(Sketcher.Constraint("Horizontal", 2))
sketch15.addConstraint(Sketcher.Constraint("Vertical", 3))
sketch15.addConstraint(Sketcher.Constraint("Horizontal", 4))
sketch15.addConstraint(Sketcher.Constraint("Vertical", 5))
sketch15.addConstraint(Sketcher.Constraint("Horizontal", 6))
sketch15.addConstraint(Sketcher.Constraint("Vertical", 7))
sketch15.addConstraint(Sketcher.Constraint("Symmetric", 3, 2, 6, 2, -1))
sketch15.addConstraint(Sketcher.Constraint("Equal", 3, 7))
sketch15.addConstraint(Sketcher.Constraint("DistanceX", 0, 2, 0, 1, Q("2 mm")))
sketch15.addConstraint(Sketcher.Constraint("DistanceX", 4, 1, 4, 2, Q("3.2 mm")))
sketch15.addConstraint(Sketcher.Constraint("DistanceY", 1, 2, 1, 1, Q("5.2 mm")))
sketch15.addConstraint(Sketcher.Constraint("DistanceY", 5, 1, 5, 2, Q("11.5 mm")))
sketch15.addConstraint(Sketcher.Constraint("DistanceX", 0, 2, -1, 1, Q("8.75 mm")))
sketch15.setExpression("Constraints[18]", "Params.sketch15_width")
sketch15.setExpression("Constraints[19]", "Params.sketch15_width2")
sketch15.setExpression("Constraints[20]", "Params.sketch15_height")
sketch15.setExpression("Constraints[21]", "Params.sketch15_height2")
pocket11 = body.newObject("PartDesign::Pocket", "Pocket010")
pocket11.Profile = sketch15
pocket11.Type = "ThroughAll"

# Sketch on XZ plane
sketch16 = body.newObject("Sketcher::SketchObject", "Sketch015")
sketch16.AttachmentSupport = (doc.getObject("XZ_Plane"), [""])
sketch16.MapMode = "FlatFace"
sketch16.addGeometry(Part.Circle(V(-7.5, 33, 0), V(0, 0, 1), 0.6), False)
sketch16.addGeometry(Part.Circle(V(7.5, 33, 0), V(0, 0, 1), 0.6), False)
sketch16.addGeometry(Part.Circle(V(-7.5, -33, 0), V(0, 0, 1), 0.6), False)
sketch16.addGeometry(Part.Circle(V(7.5, -33, 0), V(0, 0, 1), 0.6), False)
sketch16.addConstraint(Sketcher.Constraint("Equal", 0, 1))
sketch16.addConstraint(Sketcher.Constraint("Equal", 1, 2))
sketch16.addConstraint(Sketcher.Constraint("Equal", 2, 3))
sketch16.addConstraint(Sketcher.Constraint("Symmetric", 1, 3, 2, 3, -1, 1))
sketch16.addConstraint(Sketcher.Constraint("Symmetric", 0, 3, 3, 3, -1, 1))
sketch16.addConstraint(Sketcher.Constraint("Symmetric", 0, 3, 1, 3, -2))
sketch16.addConstraint(Sketcher.Constraint("Diameter", 0, Q("1.2 mm")))
sketch16.addConstraint(Sketcher.Constraint("DistanceY", -1, 1, 0, 3, Q("33 mm")))
sketch16.addConstraint(Sketcher.Constraint("DistanceX", 0, 3, 1, 3, Q("15 mm")))
sketch16.setExpression("Constraints[6]", "Params.sketch16_diameter")
pocket12 = body.newObject("PartDesign::Pocket", "Pocket011")
pocket12.Profile = sketch16
pocket12.Type = "ThroughAll"

# Sketch on XY plane
sketch17 = body.newObject("Sketcher::SketchObject", "Sketch016")
sketch17.AttachmentSupport = (doc.getObject("XY_Plane"), [""])
sketch17.MapMode = "FlatFace"
sketch17.AttachmentOffset = App.Placement(V(0, 0, -28), App.Rotation())
sketch17.addGeometry(Part.LineSegment(V(12, 0, 0), V(12, -12, 0)), False)
sketch17.addGeometry(Part.LineSegment(V(12, -12, 0), V(-12, -12, 0)), False)
sketch17.addGeometry(Part.LineSegment(V(-12, -12, 0), V(-12, 0, 0)), False)
sketch17.addGeometry(Part.LineSegment(V(-12, 0, 0), V(12, 0, 0)), False)
sketch17.addConstraint(Sketcher.Constraint("Coincident", 0, 2, 1, 1))
sketch17.addConstraint(Sketcher.Constraint("Coincident", 1, 2, 2, 1))
sketch17.addConstraint(Sketcher.Constraint("Coincident", 2, 2, 3, 1))
sketch17.addConstraint(Sketcher.Constraint("Coincident", 3, 2, 0, 1))
sketch17.addConstraint(Sketcher.Constraint("Vertical", 0))
sketch17.addConstraint(Sketcher.Constraint("Horizontal", 1))
sketch17.addConstraint(Sketcher.Constraint("Vertical", 2))
sketch17.addConstraint(Sketcher.Constraint("Horizontal", 3))
sketch17.addConstraint(Sketcher.Constraint("Symmetric", 2, 2, 3, 2, -1, 1))
sketch17.addConstraint(Sketcher.Constraint("DistanceX", 1, 2, 1, 1, Q("23.5 mm")))
sketch17.addConstraint(Sketcher.Constraint("DistanceY", 0, 2, 0, 1, Q("12.4 mm")))
sketch17.setExpression("Constraints[9]", "Params.sketch17_width")
sketch17.setExpression("Constraints[10]", "Params.sketch17_height")
pocket13 = body.newObject("PartDesign::Pocket", "Pocket012")
pocket13.Profile = sketch17
pocket13.setExpression("Length", "Params.pocket13_length")
pocket13.Reversed = True

# Sketch on XZ plane
sketch18 = body.newObject("Sketcher::SketchObject", "Sketch017")
sketch18.AttachmentSupport = (doc.getObject("XZ_Plane"), [""])
sketch18.MapMode = "FlatFace"
sketch18.addGeometry(Part.Circle(V(-17.2, -9.2, 0), V(0, 0, 1), 1), False)
sketch18.addGeometry(Part.Circle(V(-17.2, -28.2, 0), V(0, 0, 1), 1), False)
sketch18.addGeometry(Part.Circle(V(17.2, -28.2, 0), V(0, 0, 1), 1), False)
sketch18.addGeometry(Part.Circle(V(17.2, -9.2, 0), V(0, 0, 1), 1), False)
sketch18.addConstraint(Sketcher.Constraint("Equal", 0, 1))
sketch18.addConstraint(Sketcher.Constraint("Equal", 1, 2))
sketch18.addConstraint(Sketcher.Constraint("Equal", 2, 3))
sketch18.addConstraint(Sketcher.Constraint("Symmetric", 1, 3, 2, 3, -2))
sketch18.addConstraint(Sketcher.Constraint("Symmetric", 0, 3, 3, 3, -2))
sketch18.addConstraint(Sketcher.Constraint("Vertical", 0, 3, 1, 3))
sketch18.addConstraint(Sketcher.Constraint("Diameter", 0, Q("2 mm")))
sketch18.addConstraint(Sketcher.Constraint("DistanceY", 1, 3, 0, 3, Q("19 mm")))
sketch18.addConstraint(Sketcher.Constraint("DistanceX", 1, 3, 2, 3, Q("34.5 mm")))
sketch18.addConstraint(Sketcher.Constraint("DistanceY", 0, 3, -1, 1, Q("9.25 mm")))
sketch18.setExpression("Constraints[6]", "Params.sketch18_diameter")
pocket14 = body.newObject("PartDesign::Pocket", "Pocket013")
pocket14.Profile = sketch18
pocket14.Type = "ThroughAll"

# Sketch on XZ plane
sketch19 = body.newObject("Sketcher::SketchObject", "Sketch018")
sketch19.AttachmentSupport = (doc.getObject("XZ_Plane"), [""])
sketch19.MapMode = "FlatFace"
sketch19.addGeometry(Part.Circle(V(17.2, -28.2, 0), V(0, 0, 1), 1.5), False)
sketch19.addGeometry(Part.Circle(V(17.2, -28.2, 0), V(0, 0, 1), 1), False)
sketch19.addGeometry(Part.Circle(V(17.2, -9.2, 0), V(0, 0, 1), 1.5), False)
sketch19.addGeometry(Part.Circle(V(17.2, -9.2, 0), V(0, 0, 1), 1), False)
sketch19.addGeometry(Part.Circle(V(-17.2, -9.2, 0), V(0, 0, 1), 1.5), False)
sketch19.addGeometry(Part.Circle(V(-17.2, -9.2, 0), V(0, 0, 1), 1), False)
sketch19.addGeometry(Part.Circle(V(-17.2, -28.2, 0), V(0, 0, 1), 1.5), False)
sketch19.addGeometry(Part.Circle(V(-17.2, -28.2, 0), V(0, 0, 1), 1), False)
sketch19.addConstraint(Sketcher.Constraint("Coincident", 1, 3, 0, 3))
sketch19.addConstraint(Sketcher.Constraint("Coincident", 3, 3, 2, 3))
sketch19.addConstraint(Sketcher.Constraint("Coincident", 5, 3, 4, 3))
sketch19.addConstraint(Sketcher.Constraint("Coincident", 7, 3, 6, 3))
sketch19.addConstraint(Sketcher.Constraint("Equal", 0, 2))
sketch19.addConstraint(Sketcher.Constraint("Equal", 1, 3))
sketch19.addConstraint(Sketcher.Constraint("Equal", 2, 4))
sketch19.addConstraint(Sketcher.Constraint("Equal", 3, 5))
sketch19.addConstraint(Sketcher.Constraint("Equal", 4, 6))
sketch19.addConstraint(Sketcher.Constraint("Equal", 5, 7))
sketch19.addConstraint(Sketcher.Constraint("Symmetric", 2, 3, 4, 3, -2))
sketch19.addConstraint(Sketcher.Constraint("Symmetric", 0, 3, 6, 3, -2))
sketch19.addConstraint(Sketcher.Constraint("Vertical", 1, 3, 2, 3))
sketch19.addConstraint(Sketcher.Constraint("Diameter", 0, Q("3 mm")))
sketch19.addConstraint(Sketcher.Constraint("Diameter", 1, Q("2 mm")))
sketch19.addConstraint(Sketcher.Constraint("DistanceY", 0, 3, 2, 3, Q("19 mm")))
sketch19.addConstraint(Sketcher.Constraint("DistanceX", 4, 3, 2, 3, Q("34.5 mm")))
sketch19.addConstraint(Sketcher.Constraint("DistanceY", 0, 3, -1, 1, Q("28.25 mm")))
sketch19.setExpression("Constraints[13]", "Params.sketch19_diameter")
sketch19.setExpression("Constraints[14]", "Params.sketch19_diameter2")
pocket15 = body.newObject("PartDesign::Pocket", "Pocket014")
pocket15.Profile = sketch19
pocket15.setExpression("Length", "Params.pocket15_length")

# Sketch on XZ plane
sketch20 = body.newObject("Sketcher::SketchObject", "Sketch019")
sketch20.AttachmentSupport = (doc.getObject("XZ_Plane"), [""])
sketch20.MapMode = "FlatFace"
sketch20.addGeometry(Part.Circle(V(17.5, 41.2, 0), V(0, 0, 1), 1), False)
sketch20.addGeometry(Part.Circle(V(17.5, 13.2, 0), V(0, 0, 1), 1), False)
sketch20.addGeometry(Part.Circle(V(-17.5, 13.2, 0), V(0, 0, 1), 1), False)
sketch20.addGeometry(Part.Circle(V(-17.5, 41.2, 0), V(0, 0, 1), 1), False)
sketch20.addConstraint(Sketcher.Constraint("Equal", 0, 1))
sketch20.addConstraint(Sketcher.Constraint("Equal", 1, 2))
sketch20.addConstraint(Sketcher.Constraint("Equal", 2, 3))
sketch20.addConstraint(Sketcher.Constraint("Symmetric", 1, 3, 2, 3, -2))
sketch20.addConstraint(Sketcher.Constraint("Symmetric", 0, 3, 3, 3, -2))
sketch20.addConstraint(Sketcher.Constraint("Vertical", 0, 3, 1, 3))
sketch20.addConstraint(Sketcher.Constraint("Diameter", 0, Q("2 mm")))
sketch20.addConstraint(Sketcher.Constraint("DistanceY", 1, 3, 0, 3, Q("28 mm")))
sketch20.addConstraint(Sketcher.Constraint("DistanceX", 2, 3, 1, 3, Q("35 mm")))
sketch20.addConstraint(Sketcher.Constraint("DistanceY", -1, 1, 0, 3, Q("41.25 mm")))
sketch20.setExpression("Constraints[6]", "Params.sketch20_diameter")
pocket16 = body.newObject("PartDesign::Pocket", "Pocket015")
pocket16.Profile = sketch20
pocket16.Type = "ThroughAll"

# Sketch on XZ plane
sketch21 = body.newObject("Sketcher::SketchObject", "Sketch020")
sketch21.AttachmentSupport = (doc.getObject("XZ_Plane"), [""])
sketch21.MapMode = "FlatFace"
sketch21.addGeometry(Part.Circle(V(-17.5, 13.2, 0), V(0, 0, 1), 1.5), False)
sketch21.addGeometry(Part.Circle(V(17.5, 13.2, 0), V(0, 0, 1), 1.5), False)
sketch21.addGeometry(Part.Circle(V(17.5, 41.2, 0), V(0, 0, 1), 1.5), False)
sketch21.addGeometry(Part.Circle(V(-17.5, 41.2, 0), V(0, 0, 1), 1.5), False)
sketch21.addConstraint(Sketcher.Constraint("Equal", 0, 1))
sketch21.addConstraint(Sketcher.Constraint("Equal", 1, 2))
sketch21.addConstraint(Sketcher.Constraint("Equal", 2, 3))
sketch21.addConstraint(Sketcher.Constraint("Symmetric", 0, 3, 1, 3, -2))
sketch21.addConstraint(Sketcher.Constraint("Symmetric", 2, 3, 3, 3, -2))
sketch21.addConstraint(Sketcher.Constraint("Vertical", 1, 3, 2, 3))
sketch21.addConstraint(Sketcher.Constraint("Diameter", 0, Q("3 mm")))
sketch21.addConstraint(Sketcher.Constraint("DistanceX", 0, 3, 1, 3, Q("35 mm")))
sketch21.addConstraint(Sketcher.Constraint("DistanceY", 1, 3, 2, 3, Q("28 mm")))
sketch21.addConstraint(Sketcher.Constraint("DistanceY", -1, 1, 0, 3, Q("13.25 mm")))
sketch21.setExpression("Constraints[6]", "Params.sketch21_diameter")
pocket17 = body.newObject("PartDesign::Pocket", "Pocket016")
pocket17.Profile = sketch21
pocket17.setExpression("Length", "Params.pocket17_length")

doc.recompute()
